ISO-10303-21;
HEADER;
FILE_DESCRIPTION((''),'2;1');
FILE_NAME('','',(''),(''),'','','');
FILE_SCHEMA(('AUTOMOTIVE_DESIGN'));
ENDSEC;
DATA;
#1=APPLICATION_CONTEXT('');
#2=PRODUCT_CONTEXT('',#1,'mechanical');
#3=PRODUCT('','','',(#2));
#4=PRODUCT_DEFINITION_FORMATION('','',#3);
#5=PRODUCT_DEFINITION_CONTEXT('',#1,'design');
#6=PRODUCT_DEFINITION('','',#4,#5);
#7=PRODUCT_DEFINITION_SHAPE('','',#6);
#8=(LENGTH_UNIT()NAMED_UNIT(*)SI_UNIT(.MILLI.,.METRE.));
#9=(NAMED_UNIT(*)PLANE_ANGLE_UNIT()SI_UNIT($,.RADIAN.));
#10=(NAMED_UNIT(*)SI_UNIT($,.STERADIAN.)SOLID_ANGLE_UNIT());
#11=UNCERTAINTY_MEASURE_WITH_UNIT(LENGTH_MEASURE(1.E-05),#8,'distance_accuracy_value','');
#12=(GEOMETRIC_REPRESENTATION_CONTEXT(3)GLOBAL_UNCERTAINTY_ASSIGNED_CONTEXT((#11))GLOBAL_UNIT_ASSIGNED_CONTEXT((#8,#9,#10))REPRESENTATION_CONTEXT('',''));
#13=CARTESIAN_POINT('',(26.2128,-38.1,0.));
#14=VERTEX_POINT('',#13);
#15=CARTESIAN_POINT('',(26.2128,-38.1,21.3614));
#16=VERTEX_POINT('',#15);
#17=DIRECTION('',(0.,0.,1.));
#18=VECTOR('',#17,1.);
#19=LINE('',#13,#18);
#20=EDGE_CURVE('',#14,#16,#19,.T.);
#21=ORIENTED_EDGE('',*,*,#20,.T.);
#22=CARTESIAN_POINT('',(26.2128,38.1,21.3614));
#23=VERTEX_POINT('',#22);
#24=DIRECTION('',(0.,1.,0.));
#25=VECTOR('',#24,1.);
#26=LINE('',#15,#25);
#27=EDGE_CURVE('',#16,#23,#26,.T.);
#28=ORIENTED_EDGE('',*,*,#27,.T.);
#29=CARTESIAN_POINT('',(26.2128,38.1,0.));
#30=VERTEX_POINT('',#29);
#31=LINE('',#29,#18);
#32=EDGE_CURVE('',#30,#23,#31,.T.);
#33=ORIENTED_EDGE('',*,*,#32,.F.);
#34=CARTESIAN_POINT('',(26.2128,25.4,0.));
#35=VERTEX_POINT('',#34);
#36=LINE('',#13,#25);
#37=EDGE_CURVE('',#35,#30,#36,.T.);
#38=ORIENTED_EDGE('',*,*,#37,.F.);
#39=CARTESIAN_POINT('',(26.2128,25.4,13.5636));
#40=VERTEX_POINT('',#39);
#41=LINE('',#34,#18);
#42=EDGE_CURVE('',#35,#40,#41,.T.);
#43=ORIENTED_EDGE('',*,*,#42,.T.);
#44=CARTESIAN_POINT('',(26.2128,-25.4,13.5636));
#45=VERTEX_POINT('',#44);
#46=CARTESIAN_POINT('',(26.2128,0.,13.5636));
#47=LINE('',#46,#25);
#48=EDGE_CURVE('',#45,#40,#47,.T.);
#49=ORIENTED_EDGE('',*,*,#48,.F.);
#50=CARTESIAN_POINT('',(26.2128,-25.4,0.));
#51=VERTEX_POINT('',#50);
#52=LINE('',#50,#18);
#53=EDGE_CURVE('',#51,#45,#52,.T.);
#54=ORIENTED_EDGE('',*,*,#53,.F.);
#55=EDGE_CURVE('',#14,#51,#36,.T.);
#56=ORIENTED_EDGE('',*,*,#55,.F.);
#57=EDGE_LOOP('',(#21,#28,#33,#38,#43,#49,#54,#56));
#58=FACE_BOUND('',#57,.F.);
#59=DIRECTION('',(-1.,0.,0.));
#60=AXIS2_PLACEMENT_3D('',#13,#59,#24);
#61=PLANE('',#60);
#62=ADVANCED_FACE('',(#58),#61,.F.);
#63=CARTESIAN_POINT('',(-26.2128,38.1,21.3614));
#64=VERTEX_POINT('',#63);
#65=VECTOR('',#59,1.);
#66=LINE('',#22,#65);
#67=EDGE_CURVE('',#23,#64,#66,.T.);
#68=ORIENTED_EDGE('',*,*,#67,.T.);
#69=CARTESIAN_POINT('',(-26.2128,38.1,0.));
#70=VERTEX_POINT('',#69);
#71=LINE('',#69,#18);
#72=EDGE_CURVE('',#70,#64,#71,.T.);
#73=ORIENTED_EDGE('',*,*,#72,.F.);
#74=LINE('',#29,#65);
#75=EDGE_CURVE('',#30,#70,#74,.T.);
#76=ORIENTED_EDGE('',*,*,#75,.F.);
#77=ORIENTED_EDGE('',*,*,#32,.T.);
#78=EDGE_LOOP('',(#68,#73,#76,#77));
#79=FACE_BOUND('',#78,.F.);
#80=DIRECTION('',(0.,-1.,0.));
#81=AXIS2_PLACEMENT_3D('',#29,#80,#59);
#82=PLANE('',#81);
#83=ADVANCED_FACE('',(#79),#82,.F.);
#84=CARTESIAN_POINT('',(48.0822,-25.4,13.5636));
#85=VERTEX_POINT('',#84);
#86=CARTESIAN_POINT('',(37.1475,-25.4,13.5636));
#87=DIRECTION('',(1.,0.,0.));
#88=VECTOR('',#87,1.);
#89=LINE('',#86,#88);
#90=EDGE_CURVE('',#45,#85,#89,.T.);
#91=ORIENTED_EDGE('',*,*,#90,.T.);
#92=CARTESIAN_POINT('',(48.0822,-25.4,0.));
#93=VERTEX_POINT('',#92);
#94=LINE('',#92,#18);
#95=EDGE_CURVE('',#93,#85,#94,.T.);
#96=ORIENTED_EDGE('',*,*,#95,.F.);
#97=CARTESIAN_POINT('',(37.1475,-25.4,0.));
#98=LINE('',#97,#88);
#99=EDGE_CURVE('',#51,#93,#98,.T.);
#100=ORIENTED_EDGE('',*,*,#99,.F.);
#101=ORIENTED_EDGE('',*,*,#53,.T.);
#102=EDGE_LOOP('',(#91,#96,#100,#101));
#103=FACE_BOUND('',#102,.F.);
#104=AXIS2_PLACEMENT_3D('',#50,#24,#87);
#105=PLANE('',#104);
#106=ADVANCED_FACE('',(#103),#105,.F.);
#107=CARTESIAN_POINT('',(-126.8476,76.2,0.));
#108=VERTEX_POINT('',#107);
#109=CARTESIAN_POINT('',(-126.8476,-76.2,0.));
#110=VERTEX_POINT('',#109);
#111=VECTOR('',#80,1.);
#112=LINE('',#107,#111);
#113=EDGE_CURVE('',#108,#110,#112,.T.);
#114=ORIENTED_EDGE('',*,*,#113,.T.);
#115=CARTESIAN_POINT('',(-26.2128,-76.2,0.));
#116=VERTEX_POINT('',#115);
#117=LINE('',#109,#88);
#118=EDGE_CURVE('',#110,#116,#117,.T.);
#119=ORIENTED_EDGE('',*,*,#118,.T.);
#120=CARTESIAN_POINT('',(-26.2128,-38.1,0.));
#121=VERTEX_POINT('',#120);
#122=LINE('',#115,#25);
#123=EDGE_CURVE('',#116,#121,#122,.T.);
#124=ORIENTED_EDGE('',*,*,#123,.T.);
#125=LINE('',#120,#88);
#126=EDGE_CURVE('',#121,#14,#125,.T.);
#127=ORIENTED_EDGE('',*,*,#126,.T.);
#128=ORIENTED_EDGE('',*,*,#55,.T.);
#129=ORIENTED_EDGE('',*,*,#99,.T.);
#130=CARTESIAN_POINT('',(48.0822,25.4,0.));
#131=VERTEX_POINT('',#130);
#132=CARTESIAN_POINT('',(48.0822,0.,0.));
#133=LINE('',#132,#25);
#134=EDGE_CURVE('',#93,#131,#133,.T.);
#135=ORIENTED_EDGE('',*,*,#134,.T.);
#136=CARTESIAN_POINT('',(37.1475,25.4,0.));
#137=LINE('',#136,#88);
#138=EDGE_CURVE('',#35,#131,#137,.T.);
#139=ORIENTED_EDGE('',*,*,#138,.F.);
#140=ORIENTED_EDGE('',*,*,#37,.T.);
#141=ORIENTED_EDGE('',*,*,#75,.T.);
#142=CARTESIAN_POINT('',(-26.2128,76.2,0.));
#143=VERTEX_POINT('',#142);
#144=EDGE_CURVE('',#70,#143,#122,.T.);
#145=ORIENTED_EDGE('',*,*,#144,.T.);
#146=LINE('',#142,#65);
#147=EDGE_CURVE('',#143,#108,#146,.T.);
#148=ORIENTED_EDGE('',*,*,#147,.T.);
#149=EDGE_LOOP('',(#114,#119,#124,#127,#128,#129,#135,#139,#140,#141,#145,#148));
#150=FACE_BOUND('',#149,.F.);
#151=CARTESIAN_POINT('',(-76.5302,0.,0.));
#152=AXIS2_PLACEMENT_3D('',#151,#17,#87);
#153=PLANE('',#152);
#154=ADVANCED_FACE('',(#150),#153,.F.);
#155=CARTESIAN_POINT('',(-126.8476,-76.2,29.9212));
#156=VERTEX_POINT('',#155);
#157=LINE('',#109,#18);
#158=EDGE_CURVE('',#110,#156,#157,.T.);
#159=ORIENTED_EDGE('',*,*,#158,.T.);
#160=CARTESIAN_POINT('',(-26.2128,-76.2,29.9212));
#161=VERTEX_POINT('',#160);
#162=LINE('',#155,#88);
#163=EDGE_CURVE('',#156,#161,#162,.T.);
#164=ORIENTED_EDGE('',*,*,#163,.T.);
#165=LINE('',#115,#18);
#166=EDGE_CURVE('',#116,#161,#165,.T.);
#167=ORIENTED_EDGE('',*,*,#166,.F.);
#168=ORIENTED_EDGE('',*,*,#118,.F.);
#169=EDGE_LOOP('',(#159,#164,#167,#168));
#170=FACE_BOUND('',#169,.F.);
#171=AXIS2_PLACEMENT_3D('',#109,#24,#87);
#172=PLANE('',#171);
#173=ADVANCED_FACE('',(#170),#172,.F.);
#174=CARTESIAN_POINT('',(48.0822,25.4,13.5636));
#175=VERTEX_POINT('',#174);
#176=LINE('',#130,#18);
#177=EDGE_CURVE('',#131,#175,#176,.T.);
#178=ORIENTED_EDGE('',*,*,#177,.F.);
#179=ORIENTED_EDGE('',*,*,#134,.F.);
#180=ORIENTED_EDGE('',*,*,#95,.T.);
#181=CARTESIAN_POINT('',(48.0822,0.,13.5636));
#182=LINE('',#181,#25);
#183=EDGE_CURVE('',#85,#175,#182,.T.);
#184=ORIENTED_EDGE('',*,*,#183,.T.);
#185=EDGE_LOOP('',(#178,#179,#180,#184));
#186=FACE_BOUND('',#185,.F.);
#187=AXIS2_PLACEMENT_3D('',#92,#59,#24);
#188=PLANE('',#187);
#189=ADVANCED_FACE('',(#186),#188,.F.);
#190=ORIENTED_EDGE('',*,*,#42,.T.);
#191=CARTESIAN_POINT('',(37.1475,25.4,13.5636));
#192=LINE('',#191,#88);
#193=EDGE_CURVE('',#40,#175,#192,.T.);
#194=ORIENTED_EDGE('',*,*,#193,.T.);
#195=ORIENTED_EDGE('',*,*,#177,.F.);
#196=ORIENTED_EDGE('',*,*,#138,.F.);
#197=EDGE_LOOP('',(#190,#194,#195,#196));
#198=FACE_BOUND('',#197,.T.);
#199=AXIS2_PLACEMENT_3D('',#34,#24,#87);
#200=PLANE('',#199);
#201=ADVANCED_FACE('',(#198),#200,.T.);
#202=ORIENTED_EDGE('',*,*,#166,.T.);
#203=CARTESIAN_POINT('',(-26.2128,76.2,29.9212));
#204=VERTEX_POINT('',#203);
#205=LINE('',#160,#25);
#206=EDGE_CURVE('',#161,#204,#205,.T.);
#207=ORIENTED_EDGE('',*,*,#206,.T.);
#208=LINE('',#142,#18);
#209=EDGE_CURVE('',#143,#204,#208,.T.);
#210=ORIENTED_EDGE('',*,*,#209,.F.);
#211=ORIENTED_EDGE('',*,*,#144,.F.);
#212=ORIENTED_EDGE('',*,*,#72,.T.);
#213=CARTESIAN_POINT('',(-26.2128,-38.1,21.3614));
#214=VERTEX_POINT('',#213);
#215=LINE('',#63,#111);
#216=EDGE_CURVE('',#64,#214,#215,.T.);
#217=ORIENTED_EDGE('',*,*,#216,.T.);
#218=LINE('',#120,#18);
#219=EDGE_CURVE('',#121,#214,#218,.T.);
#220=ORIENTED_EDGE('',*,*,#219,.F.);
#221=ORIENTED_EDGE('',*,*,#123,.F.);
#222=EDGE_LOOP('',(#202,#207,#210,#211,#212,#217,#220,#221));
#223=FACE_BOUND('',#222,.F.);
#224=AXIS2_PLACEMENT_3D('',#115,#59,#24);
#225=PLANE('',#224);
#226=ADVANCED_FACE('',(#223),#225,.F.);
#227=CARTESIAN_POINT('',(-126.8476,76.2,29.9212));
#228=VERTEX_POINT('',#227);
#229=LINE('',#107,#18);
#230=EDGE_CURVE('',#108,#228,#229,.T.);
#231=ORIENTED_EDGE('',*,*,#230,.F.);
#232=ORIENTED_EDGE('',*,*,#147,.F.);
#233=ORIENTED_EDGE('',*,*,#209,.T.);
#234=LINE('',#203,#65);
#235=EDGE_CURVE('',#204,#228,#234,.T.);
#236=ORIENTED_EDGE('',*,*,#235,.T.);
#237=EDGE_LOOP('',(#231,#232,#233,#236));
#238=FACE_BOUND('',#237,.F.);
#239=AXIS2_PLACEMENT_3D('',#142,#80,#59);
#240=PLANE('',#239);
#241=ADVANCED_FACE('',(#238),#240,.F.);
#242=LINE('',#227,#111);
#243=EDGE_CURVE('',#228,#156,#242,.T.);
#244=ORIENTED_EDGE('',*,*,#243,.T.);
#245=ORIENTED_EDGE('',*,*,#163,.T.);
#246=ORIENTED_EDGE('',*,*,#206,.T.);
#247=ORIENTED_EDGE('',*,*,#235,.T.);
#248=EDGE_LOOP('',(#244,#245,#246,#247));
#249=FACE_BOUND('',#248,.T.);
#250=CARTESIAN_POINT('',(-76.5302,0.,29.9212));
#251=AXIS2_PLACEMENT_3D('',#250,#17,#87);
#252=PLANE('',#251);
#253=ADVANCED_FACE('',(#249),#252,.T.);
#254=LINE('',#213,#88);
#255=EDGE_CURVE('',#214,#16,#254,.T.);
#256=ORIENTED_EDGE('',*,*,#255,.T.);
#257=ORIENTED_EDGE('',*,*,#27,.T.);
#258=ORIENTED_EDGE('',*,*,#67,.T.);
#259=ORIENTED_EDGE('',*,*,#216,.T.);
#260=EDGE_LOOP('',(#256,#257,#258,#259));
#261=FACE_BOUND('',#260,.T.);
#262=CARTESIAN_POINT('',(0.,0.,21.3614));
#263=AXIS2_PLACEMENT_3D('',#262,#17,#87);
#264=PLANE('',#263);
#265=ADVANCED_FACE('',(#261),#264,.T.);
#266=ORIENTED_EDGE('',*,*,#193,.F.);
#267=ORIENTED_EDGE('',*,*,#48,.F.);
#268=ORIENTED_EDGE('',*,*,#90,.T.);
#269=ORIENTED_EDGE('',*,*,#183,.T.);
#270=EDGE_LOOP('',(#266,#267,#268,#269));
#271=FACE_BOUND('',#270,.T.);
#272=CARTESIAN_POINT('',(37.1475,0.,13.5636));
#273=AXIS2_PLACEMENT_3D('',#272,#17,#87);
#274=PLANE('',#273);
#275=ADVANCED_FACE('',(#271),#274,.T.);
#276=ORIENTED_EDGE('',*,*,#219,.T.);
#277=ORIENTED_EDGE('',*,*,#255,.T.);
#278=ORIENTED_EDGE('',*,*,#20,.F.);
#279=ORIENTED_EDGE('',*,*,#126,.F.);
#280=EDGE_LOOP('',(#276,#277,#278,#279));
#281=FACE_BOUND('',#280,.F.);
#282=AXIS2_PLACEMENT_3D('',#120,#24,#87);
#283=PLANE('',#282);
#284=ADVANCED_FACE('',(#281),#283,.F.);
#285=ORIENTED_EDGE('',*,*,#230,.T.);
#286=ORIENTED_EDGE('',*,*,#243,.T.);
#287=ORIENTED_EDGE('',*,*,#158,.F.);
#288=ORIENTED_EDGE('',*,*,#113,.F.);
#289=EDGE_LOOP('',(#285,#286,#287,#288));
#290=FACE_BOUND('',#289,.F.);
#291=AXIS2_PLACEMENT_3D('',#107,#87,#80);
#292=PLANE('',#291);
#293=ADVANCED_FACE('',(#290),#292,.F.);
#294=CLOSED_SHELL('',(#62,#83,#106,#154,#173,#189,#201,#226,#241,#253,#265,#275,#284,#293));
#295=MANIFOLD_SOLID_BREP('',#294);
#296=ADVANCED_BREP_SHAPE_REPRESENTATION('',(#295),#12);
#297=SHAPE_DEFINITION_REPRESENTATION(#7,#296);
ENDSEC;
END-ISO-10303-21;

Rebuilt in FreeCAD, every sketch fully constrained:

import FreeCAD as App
import Part
import Sketcher
from FreeCAD import Vector
Q = App.Units.Quantity

doc = App.newDocument("Part")
params = doc.addObject("Spreadsheet::Sheet", "Params")
for row, (alias, value) in enumerate([
    ("sketch1_height", "6 in"),
    ("sketch1_width", "3.962 in"),
    ("pad1_length", "1.178 in"),
    ("sketch2_height", "3 in"),
    ("sketch2_width", "2.064 in"),
    ("pad2_length", "0.841 in"),
    ("sketch3_height", "2 in"),
    ("sketch3_width", "0.861 in"),
    ("pad3_length", "0.534 in"),
], start=1):
    params.set(f"A{row}", alias)
    params.set(f"B{row}", "=" + value)
    params.setAlias(f"B{row}", alias)

body = doc.addObject("PartDesign::Body", "Body")

sketch1 = body.newObject("Sketcher::SketchObject", "Sketch")
sketch1.AttachmentSupport = (doc.getObject("XY_Plane"), [""])
sketch1.MapMode = "FlatFace"
sketch1.addGeometry(Part.LineSegment(Vector(-26, 76, 0), Vector(-127, 76, 0)), False)
sketch1.addGeometry(Part.LineSegment(Vector(-127, 76, 0), Vector(-127, -76, 0)), False)
sketch1.addGeometry(Part.LineSegment(Vector(-127, -76, 0), Vector(-26, -76, 0)), False)
sketch1.addGeometry(Part.LineSegment(Vector(-26, -76, 0), Vector(-26, 76, 0)), False)
sketch1.addConstraint(Sketcher.Constraint("Coincident", 0, 2, 1, 1))
sketch1.addConstraint(Sketcher.Constraint("Coincident", 1, 2, 2, 1))
sketch1.addConstraint(Sketcher.Constraint("Coincident", 2, 2, 3, 1))
sketch1.addConstraint(Sketcher.Constraint("Coincident", 3, 2, 0, 1))
sketch1.addConstraint(Sketcher.Constraint("Horizontal", 0))
sketch1.addConstraint(Sketcher.Constraint("Vertical", 1))
sketch1.addConstraint(Sketcher.Constraint("Horizontal", 2))
sketch1.addConstraint(Sketcher.Constraint("Vertical", 3))
sketch1.addConstraint(Sketcher.Constraint("DistanceY", 1, 2, 1, 1, Q("6 in")))
sketch1.addConstraint(Sketcher.Constraint("DistanceY", -1, 1, 0, 2, Q("3 in")))
sketch1.addConstraint(Sketcher.Constraint("DistanceX", 0, 2, 0, 1, Q("3.962 in")))
sketch1.addConstraint(Sketcher.Constraint("DistanceX", 0, 2, -1, 1, Q("4.994 in")))
sketch1.setExpression("Constraints[8]", "Params.sketch1_height")
sketch1.setExpression("Constraints[10]", "Params.sketch1_width")
pad1 = body.newObject("PartDesign::Pad", "Pad")
pad1.Profile = sketch1
pad1.setExpression("Length", "Params.pad1_length")

sketch2 = body.newObject("Sketcher::SketchObject", "Sketch001")
sketch2.AttachmentSupport = (doc.getObject("XY_Plane"), [""])
sketch2.MapMode = "FlatFace"
sketch2.addGeometry(Part.LineSegment(Vector(26, 38, 0), Vector(-26, 38, 0)), False)
sketch2.addGeometry(Part.LineSegment(Vector(-26, 38, 0), Vector(-26, -38, 0)), False)
sketch2.addGeometry(Part.LineSegment(Vector(-26, -38, 0), Vector(26, -38, 0)), False)
sketch2.addGeometry(Part.LineSegment(Vector(26, -38, 0), Vector(26, 38, 0)), False)
sketch2.addConstraint(Sketcher.Constraint("Coincident", 0, 2, 1, 1))
sketch2.addConstraint(Sketcher.Constraint("Coincident", 1, 2, 2, 1))
sketch2.addConstraint(Sketcher.Constraint("Coincident", 2, 2, 3, 1))
sketch2.addConstraint(Sketcher.Constraint("Coincident", 3, 2, 0, 1))
sketch2.addConstraint(Sketcher.Constraint("Horizontal", 0))
sketch2.addConstraint(Sketcher.Constraint("Vertical", 1))
sketch2.addConstraint(Sketcher.Constraint("Horizontal", 2))
sketch2.addConstraint(Sketcher.Constraint("Vertical", 3))
sketch2.addConstraint(Sketcher.Constraint("Symmetric", 0, 2, 2, 2, -1, 1))
sketch2.addConstraint(Sketcher.Constraint("DistanceY", 1, 2, 1, 1, Q("3 in")))
sketch2.addConstraint(Sketcher.Constraint("DistanceX", 0, 2, 0, 1, Q("2.064 in")))
sketch2.setExpression("Constraints[9]", "Params.sketch2_height")
sketch2.setExpression("Constraints[10]", "Params.sketch2_width")
pad2 = body.newObject("PartDesign::Pad", "Pad001")
pad2.Profile = sketch2
pad2.setExpression("Length", "Params.pad2_length")

sketch3 = body.newObject("Sketcher::SketchObject", "Sketch002")
sketch3.AttachmentSupport = (doc.getObject("XY_Plane"), [""])
sketch3.MapMode = "FlatFace"
sketch3.addGeometry(Part.LineSegment(Vector(26, 25, 0), Vector(26, -25, 0)), False)
sketch3.addGeometry(Part.LineSegment(Vector(26, -25, 0), Vector(48, -25, 0)), False)
sketch3.addGeometry(Part.LineSegment(Vector(48, -25, 0), Vector(48, 25, 0)), False)
sketch3.addGeometry(Part.LineSegment(Vector(48, 25, 0), Vector(26, 25, 0)), False)
sketch3.addConstraint(Sketcher.Constraint("Coincident", 0, 2, 1, 1))
sketch3.addConstraint(Sketcher.Constraint("Coincident", 1, 2, 2, 1))
sketch3.addConstraint(Sketcher.Constraint("Coincident", 2, 2, 3, 1))
sketch3.addConstraint(Sketcher.Constraint("Coincident", 3, 2, 0, 1))
sketch3.addConstraint(Sketcher.Constraint("Vertical", 0))
sketch3.addConstraint(Sketcher.Constraint("Horizontal", 1))
sketch3.addConstraint(Sketcher.Constraint("Vertical", 2))
sketch3.addConstraint(Sketcher.Constraint("Horizontal", 3))
sketch3.addConstraint(Sketcher.Constraint("DistanceY", 0, 2, 0, 1, Q("2 in")))
sketch3.addConstraint(Sketcher.Constraint("DistanceY", 0, 2, -1, 1, Q("1 in")))
sketch3.addConstraint(Sketcher.Constraint("DistanceX", 1, 1, 1, 2, Q("0.861 in")))
sketch3.addConstraint(Sketcher.Constraint("DistanceX", -1, 1, 0, 2, Q("1.032 in")))
sketch3.setExpression("Constraints[8]", "Params.sketch3_height")
sketch3.setExpression("Constraints[10]", "Params.sketch3_width")
pad3 = body.newObject("PartDesign::Pad", "Pad002")
pad3.Profile = sketch3
pad3.setExpression("Length", "Params.pad3_length")

doc.recompute()
